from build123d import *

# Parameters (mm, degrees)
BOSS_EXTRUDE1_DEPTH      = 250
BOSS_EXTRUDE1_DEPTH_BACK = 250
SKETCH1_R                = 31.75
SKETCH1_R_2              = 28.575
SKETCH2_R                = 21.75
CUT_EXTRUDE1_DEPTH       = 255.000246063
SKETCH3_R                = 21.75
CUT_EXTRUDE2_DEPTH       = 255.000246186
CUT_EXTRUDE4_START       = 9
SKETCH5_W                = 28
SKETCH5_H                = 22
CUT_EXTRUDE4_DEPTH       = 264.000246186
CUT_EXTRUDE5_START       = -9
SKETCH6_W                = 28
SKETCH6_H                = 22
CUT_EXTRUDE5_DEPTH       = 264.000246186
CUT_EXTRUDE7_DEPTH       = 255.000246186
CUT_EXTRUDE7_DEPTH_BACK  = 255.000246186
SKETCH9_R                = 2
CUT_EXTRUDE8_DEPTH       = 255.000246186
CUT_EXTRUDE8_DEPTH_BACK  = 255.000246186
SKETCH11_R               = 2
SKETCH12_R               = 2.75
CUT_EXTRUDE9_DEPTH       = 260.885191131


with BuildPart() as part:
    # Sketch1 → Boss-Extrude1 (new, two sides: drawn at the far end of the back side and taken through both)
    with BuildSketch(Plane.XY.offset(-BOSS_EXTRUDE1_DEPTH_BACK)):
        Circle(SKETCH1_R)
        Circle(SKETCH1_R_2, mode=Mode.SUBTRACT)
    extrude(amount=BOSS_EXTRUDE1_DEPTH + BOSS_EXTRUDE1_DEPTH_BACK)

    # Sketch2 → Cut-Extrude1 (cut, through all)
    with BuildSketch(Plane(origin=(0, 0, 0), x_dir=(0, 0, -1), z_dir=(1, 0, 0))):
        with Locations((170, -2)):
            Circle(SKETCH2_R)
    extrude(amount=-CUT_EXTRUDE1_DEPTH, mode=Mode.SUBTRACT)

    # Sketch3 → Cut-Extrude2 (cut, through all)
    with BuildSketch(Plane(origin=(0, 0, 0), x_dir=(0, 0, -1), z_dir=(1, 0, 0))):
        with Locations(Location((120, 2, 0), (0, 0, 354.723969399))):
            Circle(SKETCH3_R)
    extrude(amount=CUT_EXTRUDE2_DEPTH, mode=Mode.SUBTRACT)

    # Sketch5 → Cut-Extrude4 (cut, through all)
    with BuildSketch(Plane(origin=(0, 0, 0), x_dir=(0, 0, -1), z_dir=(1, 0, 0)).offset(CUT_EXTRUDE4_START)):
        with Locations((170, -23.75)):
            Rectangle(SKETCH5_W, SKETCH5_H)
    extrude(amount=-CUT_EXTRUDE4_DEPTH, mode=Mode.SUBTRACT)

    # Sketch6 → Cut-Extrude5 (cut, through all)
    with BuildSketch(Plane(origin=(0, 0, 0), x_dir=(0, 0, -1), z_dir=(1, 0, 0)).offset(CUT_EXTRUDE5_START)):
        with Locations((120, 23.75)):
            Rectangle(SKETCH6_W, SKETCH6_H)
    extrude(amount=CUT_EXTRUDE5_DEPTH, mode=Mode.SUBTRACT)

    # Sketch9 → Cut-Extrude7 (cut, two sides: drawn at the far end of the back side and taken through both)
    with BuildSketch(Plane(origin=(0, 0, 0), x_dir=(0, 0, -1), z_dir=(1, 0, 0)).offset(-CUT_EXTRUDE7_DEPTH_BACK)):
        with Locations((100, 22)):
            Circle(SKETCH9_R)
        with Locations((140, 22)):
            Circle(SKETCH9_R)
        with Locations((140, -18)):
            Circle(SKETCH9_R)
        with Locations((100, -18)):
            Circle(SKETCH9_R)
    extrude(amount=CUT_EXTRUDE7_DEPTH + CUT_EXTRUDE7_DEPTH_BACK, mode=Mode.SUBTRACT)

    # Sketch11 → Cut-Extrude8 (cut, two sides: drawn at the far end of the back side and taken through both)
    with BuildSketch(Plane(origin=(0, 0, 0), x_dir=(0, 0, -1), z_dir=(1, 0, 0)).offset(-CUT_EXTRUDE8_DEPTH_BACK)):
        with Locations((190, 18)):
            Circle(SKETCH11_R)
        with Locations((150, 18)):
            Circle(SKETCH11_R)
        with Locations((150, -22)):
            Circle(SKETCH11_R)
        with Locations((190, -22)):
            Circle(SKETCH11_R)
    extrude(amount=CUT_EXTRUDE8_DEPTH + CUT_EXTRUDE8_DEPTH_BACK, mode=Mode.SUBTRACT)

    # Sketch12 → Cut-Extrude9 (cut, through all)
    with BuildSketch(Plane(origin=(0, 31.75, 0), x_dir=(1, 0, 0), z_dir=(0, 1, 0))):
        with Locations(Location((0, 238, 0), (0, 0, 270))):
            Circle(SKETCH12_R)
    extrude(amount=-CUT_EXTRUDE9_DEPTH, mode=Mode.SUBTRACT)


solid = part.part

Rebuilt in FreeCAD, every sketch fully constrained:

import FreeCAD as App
import Part
import Sketcher

V = App.Vector


def add_polygon(sketch, points):
    """Adds a closed chain of lines whose ends are joined by coincident constraints."""
    first, n = sketch.GeometryCount, len(points)
    for a, b in zip(points, points[1:] + points[:1]):
        sketch.addGeometry(Part.LineSegment(App.Vector(*a, 0), App.Vector(*b, 0)), False)
    for i in range(n):
        sketch.addConstraint(Sketcher.Constraint("Coincident", first + i, 2, first + (i + 1) % n, 1))

doc = App.newDocument("Part")
body = doc.addObject("PartDesign::Body", "Body")

# Sketch on XY plane
sketch1 = doc.addObject("Sketcher::SketchObject", "Sketch")
body.addObject(sketch1)
sketch1.AttachmentSupport = (doc.XY_Plane, [""])
sketch1.MapMode = "FlatFace"
sketch1.addGeometry([
    Part.Circle(V(0, 0, 0), V(0, 0, 1), 32),
    Part.Circle(V(0, 0, 0), V(0, 0, 1), 29),
], False)
sketch1.addConstraint([
    Sketcher.Constraint("Coincident", 0, 3, -1, 1),
    Sketcher.Constraint("Coincident", 1, 3, -1, 1),
    Sketcher.Constraint("Diameter", 0, 63.5),
    Sketcher.Constraint("Diameter", 1, 57.15),
])
pad1 = doc.addObject("PartDesign::Pad", "Pad")
body.addObject(pad1)
pad1.Profile = sketch1
pad1.Type = "TwoLengths"
pad1.Length = 250
pad1.Length2 = 250

# Sketch on YZ plane
sketch2 = doc.addObject("Sketcher::SketchObject", "Sketch001")
body.addObject(sketch2)
sketch2.AttachmentSupport = (doc.YZ_Plane, [""])
sketch2.MapMode = "FlatFace"
sketch2.addGeometry(Part.Circle(V(-2, -170, 0), V(0, 0, 1), 22), False)
sketch2.addConstraint([
    Sketcher.Constraint("Diameter", 0, 43.5),
    Sketcher.Constraint("DistanceX", 0, 3, -1, 1, 2.0),
    Sketcher.Constraint("DistanceY", 0, 3, -1, 1, 170.0),
])
pocket1 = doc.addObject("PartDesign::Pocket", "Pocket")
body.addObject(pocket1)
pocket1.Profile = sketch2
pocket1.Type = "ThroughAll"

# Sketch on YZ plane
sketch3 = doc.addObject("Sketcher::SketchObject", "Sketch002")
body.addObject(sketch3)
sketch3.AttachmentSupport = (doc.YZ_Plane, [""])
sketch3.MapMode = "FlatFace"
sketch3.addGeometry(Part.Circle(V(2, -120, 0), V(0, 0, 1), 22), False)
sketch3.addConstraint([
    Sketcher.Constraint("Diameter", 0, 43.5),
    Sketcher.Constraint("DistanceX", -1, 1, 0, 3, 2.0),
    Sketcher.Constraint("DistanceY", 0, 3, -1, 1, 120.0),
])
pocket2 = doc.addObject("PartDesign::Pocket", "Pocket001")
body.addObject(pocket2)
pocket2.Profile = sketch3
pocket2.Type = "ThroughAll"
pocket2.Reversed = True

# Sketch on YZ plane
sketch4 = doc.addObject("Sketcher::SketchObject", "Sketch003")
body.addObject(sketch4)
sketch4.AttachmentSupport = (doc.YZ_Plane, [""])
sketch4.MapMode = "FlatFace"
sketch4.AttachmentOffset = App.Placement(V(0, 0, 9), App.Rotation())
add_polygon(sketch4, [(-13, -156), (-35, -156), (-35, -184), (-13, -184)])  # lines 0-3
sketch4.addConstraint([
    Sketcher.Constraint("Horizontal", 0),
    Sketcher.Constraint("Vertical", 1),
    Sketcher.Constraint("Horizontal", 2),
    Sketcher.Constraint("Vertical", 3),
    Sketcher.Constraint("DistanceX", 0, 2, 0, 1, 22.0),
    Sketcher.Constraint("DistanceY", 1, 2, 1, 1, 28.0),
    Sketcher.Constraint("DistanceY", 0, 2, -1, 1, 156.0),
    Sketcher.Constraint("DistanceX", 0, 2, -1, 1, 34.75),
])
pocket3 = doc.addObject("PartDesign::Pocket", "Pocket002")
body.addObject(pocket3)
pocket3.Profile = sketch4
pocket3.Type = "ThroughAll"

# Sketch on YZ plane
sketch5 = doc.addObject("Sketcher::SketchObject", "Sketch004")
body.addObject(sketch5)
sketch5.AttachmentSupport = (doc.YZ_Plane, [""])
sketch5.MapMode = "FlatFace"
sketch5.AttachmentOffset = App.Placement(V(0, 0, -9), App.Rotation())
add_polygon(sketch5, [(35, -106), (13, -106), (13, -134), (35, -134)])  # lines 0-3
sketch5.addConstraint([
    Sketcher.Constraint("Horizontal", 0),
    Sketcher.Constraint("Vertical", 1),
    Sketcher.Constraint("Horizontal", 2),
    Sketcher.Constraint("Vertical", 3),
    Sketcher.Constraint("DistanceX", 0, 2, 0, 1, 22.0),
    Sketcher.Constraint("DistanceY", 1, 2, 1, 1, 28.0),
    Sketcher.Constraint("DistanceY", 0, 2, -1, 1, 106.0),
    Sketcher.Constraint("DistanceX", -1, 1, 0, 2, 12.75),
])
pocket4 = doc.addObject("PartDesign::Pocket", "Pocket003")
body.addObject(pocket4)
pocket4.Profile = sketch5
pocket4.Type = "ThroughAll"
pocket4.Reversed = True

# Sketch on YZ plane
sketch6 = doc.addObject("Sketcher::SketchObject", "Sketch005")
body.addObject(sketch6)
sketch6.AttachmentSupport = (doc.YZ_Plane, [""])
sketch6.MapMode = "FlatFace"
sketch6.addGeometry([
    Part.Circle(V(22, -100, 0), V(0, 0, 1), 2),
    Part.Circle(V(22, -140, 0), V(0, 0, 1), 2),
    Part.Circle(V(-18, -140, 0), V(0, 0, 1), 2),
    Part.Circle(V(-18, -100, 0), V(0, 0, 1), 2),
], False)
sketch6.addConstraint([
    Sketcher.Constraint("Equal", 0, 1),
    Sketcher.Constraint("Equal", 1, 2),
    Sketcher.Constraint("Equal", 2, 3),
    Sketcher.Constraint("Horizontal", 1, 3, 2, 3),
    Sketcher.Constraint("Horizontal", 0, 3, 3, 3),
    Sketcher.Constraint("Vertical", 0, 3, 1, 3),
    Sketcher.Constraint("Vertical", 2, 3, 3, 3),
    Sketcher.Constraint("Diameter", 0, 4.0),
    Sketcher.Constraint("DistanceX", -1, 1, 0, 3, 22.0),
    Sketcher.Constraint("DistanceY", 0, 3, -1, 1, 100.0),
    Sketcher.Constraint("DistanceY", 1, 3, -1, 1, 140.0),
    Sketcher.Constraint("DistanceX", 2, 3, -1, 1, 18.0),
])
pocket5 = doc.addObject("PartDesign::Pocket", "Pocket004")
body.addObject(pocket5)
pocket5.Profile = sketch6
pocket5.Type = "ThroughAll"
pocket5.Midplane = True

# Sketch on YZ plane
sketch7 = doc.addObject("Sketcher::SketchObject", "Sketch006")
body.addObject(sketch7)
sketch7.AttachmentSupport = (doc.YZ_Plane, [""])
sketch7.MapMode = "FlatFace"
sketch7.addGeometry([
    Part.Circle(V(18, -190, 0), V(0, 0, 1), 2),
    Part.Circle(V(18, -150, 0), V(0, 0, 1), 2),
    Part.Circle(V(-22, -150, 0), V(0, 0, 1), 2),
    Part.Circle(V(-22, -190, 0), V(0, 0, 1), 2),
], False)
sketch7.addConstraint([
    Sketcher.Constraint("Equal", 0, 1),
    Sketcher.Constraint("Equal", 1, 2),
    Sketcher.Constraint("Equal", 2, 3),
    Sketcher.Constraint("Horizontal", 1, 3, 2, 3),
    Sketcher.Constraint("Horizontal", 0, 3, 3, 3),
    Sketcher.Constraint("Vertical", 0, 3, 1, 3),
    Sketcher.Constraint("Vertical", 2, 3, 3, 3),
    Sketcher.Constraint("Diameter", 0, 4.0),
    Sketcher.Constraint("DistanceX", -1, 1, 0, 3, 18.0),
    Sketcher.Constraint("DistanceY", 0, 3, -1, 1, 190.0),
    Sketcher.Constraint("DistanceY", 1, 3, -1, 1, 150.0),
    Sketcher.Constraint("DistanceX", 2, 3, -1, 1, 22.0),
])
pocket6 = doc.addObject("PartDesign::Pocket", "Pocket005")
body.addObject(pocket6)
pocket6.Profile = sketch7
pocket6.Type = "ThroughAll"
pocket6.Midplane = True

# Sketch on XZ plane
sketch8 = doc.addObject("Sketcher::SketchObject", "Sketch007")
body.addObject(sketch8)
sketch8.AttachmentSupport = (doc.XZ_Plane, [""])
sketch8.MapMode = "FlatFace"
sketch8.AttachmentOffset = App.Placement(V(0, 0, -31.75), App.Rotation())
sketch8.addGeometry(Part.Circle(V(0, -238, 0), V(0, 0, 1), 2.8), False)
sketch8.addConstraint([
    Sketcher.Constraint("PointOnObject", 0, 3, -2),
    Sketcher.Constraint("Diameter", 0, 5.5),
    Sketcher.Constraint("DistanceY", 0, 3, -1, 1, 238.0),
])
pocket7 = doc.addObject("PartDesign::Pocket", "Pocket006")
body.addObject(pocket7)
pocket7.Profile = sketch8
pocket7.Type = "ThroughAll"
pocket7.Reversed = True

doc.recompute()
